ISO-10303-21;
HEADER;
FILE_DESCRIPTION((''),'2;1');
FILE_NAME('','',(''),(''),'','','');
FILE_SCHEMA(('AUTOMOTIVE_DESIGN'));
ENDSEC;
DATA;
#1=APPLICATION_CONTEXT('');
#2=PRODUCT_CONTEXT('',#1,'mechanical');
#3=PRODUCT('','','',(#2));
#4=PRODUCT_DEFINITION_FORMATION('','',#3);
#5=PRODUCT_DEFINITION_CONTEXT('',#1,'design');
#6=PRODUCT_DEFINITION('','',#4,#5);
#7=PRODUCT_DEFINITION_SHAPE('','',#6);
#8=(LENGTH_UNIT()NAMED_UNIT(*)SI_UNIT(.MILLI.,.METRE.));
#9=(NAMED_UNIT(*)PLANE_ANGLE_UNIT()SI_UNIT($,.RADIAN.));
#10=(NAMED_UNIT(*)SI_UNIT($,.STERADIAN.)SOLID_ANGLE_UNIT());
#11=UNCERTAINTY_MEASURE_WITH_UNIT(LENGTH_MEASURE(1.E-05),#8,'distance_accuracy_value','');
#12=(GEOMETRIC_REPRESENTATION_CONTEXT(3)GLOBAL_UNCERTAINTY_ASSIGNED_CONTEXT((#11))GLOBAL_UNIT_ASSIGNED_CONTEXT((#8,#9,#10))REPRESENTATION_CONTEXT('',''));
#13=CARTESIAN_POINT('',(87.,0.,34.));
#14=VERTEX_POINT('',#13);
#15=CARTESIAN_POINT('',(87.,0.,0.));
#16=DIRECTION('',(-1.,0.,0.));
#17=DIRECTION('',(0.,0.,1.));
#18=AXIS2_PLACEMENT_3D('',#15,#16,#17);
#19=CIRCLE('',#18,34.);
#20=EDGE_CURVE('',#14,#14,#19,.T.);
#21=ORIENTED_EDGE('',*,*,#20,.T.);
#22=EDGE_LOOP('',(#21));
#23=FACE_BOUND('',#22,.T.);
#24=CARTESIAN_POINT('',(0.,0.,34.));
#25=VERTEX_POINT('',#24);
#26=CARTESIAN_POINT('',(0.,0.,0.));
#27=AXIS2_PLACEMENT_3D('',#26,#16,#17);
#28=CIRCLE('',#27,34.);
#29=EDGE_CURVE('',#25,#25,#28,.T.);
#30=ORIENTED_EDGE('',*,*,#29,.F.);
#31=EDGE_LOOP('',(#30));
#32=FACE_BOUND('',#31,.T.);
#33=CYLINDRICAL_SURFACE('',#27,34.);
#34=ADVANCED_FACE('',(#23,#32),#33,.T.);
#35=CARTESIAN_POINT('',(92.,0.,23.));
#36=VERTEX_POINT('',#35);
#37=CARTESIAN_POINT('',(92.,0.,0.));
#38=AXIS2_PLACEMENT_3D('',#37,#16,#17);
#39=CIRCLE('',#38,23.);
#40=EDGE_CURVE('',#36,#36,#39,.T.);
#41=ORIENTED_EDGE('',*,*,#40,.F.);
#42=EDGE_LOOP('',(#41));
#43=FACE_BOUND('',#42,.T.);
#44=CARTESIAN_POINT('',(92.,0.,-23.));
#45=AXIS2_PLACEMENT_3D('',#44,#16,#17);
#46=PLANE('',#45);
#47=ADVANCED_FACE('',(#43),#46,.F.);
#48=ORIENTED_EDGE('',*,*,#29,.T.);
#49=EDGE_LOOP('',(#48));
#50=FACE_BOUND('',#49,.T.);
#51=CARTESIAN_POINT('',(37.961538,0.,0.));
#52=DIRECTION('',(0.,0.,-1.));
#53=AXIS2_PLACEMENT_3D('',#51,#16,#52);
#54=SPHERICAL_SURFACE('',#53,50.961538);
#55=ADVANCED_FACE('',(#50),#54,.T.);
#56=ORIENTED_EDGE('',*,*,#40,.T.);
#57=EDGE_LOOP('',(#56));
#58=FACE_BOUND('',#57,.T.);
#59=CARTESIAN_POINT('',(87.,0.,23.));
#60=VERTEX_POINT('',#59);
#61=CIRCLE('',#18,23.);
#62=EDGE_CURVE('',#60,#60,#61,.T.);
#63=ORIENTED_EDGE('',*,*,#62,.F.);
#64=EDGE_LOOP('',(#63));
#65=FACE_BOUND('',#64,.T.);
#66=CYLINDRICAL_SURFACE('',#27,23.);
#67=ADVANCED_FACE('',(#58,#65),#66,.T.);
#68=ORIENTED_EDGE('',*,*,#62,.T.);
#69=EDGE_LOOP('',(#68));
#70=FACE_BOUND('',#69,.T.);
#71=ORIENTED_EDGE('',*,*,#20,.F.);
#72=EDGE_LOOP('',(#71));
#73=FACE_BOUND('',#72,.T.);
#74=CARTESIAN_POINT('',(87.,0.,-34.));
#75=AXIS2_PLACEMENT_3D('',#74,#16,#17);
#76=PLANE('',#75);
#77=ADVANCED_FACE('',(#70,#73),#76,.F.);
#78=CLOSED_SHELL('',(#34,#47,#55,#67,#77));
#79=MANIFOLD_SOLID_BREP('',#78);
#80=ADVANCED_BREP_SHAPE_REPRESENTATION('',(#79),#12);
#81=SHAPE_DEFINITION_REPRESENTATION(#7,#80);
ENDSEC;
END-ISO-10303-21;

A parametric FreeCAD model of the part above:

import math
import FreeCAD as App
import Part
import Sketcher
from FreeCAD import Vector
Q = App.Units.Quantity

doc = App.newDocument("Part")
body = doc.addObject("PartDesign::Body", "Body")

sketch1 = body.newObject("Sketcher::SketchObject", "Sketch")
sketch1.AttachmentSupport = (doc.getObject("XZ_Plane"), [""])
sketch1.MapMode = "FlatFace"
sketch1.addGeometry([
    Part.LineSegment(Vector(92, -23, 0), Vector(87, -23, 0)),
    Part.LineSegment(Vector(87, -23, 0), Vector(87, -34, 0)),
    Part.LineSegment(Vector(87, -34, 0), Vector(0, -34, 0)),
    Part.ArcOfCircle(Part.Circle(Vector(38, 0, 0), Vector(0, 0, 1), 51), math.radians(-180), math.radians(-138)),
    Part.LineSegment(Vector(-13, 0, 0), Vector(92, 0, 0)),
    Part.LineSegment(Vector(92, 0, 0), Vector(92, -23, 0)),
], False)
sketch1.addConstraint([
    Sketcher.Constraint("Coincident", 0, 2, 1, 1),
    Sketcher.Constraint("Coincident", 1, 2, 2, 1),
    Sketcher.Constraint("Coincident", 2, 2, 3, 2),
    Sketcher.Constraint("Coincident", 3, 1, 4, 1),
    Sketcher.Constraint("Coincident", 4, 2, 5, 1),
    Sketcher.Constraint("Coincident", 5, 2, 0, 1),
    Sketcher.Constraint("Horizontal", 0),
    Sketcher.Constraint("Vertical", 1),
    Sketcher.Constraint("Horizontal", 2),
    Sketcher.Constraint("Horizontal", 4),
    Sketcher.Constraint("Vertical", 5),
    Sketcher.Constraint("PointOnObject", 3, 3, -1),
    Sketcher.Constraint("PointOnObject", 2, 2, -2),
    Sketcher.Constraint("PointOnObject", 3, 1, -1),
    Sketcher.Constraint("DistanceX", 0, 2, 0, 1, Q("5 mm")),
    Sketcher.Constraint("DistanceX", 2, 2, 2, 1, Q("87 mm")),
    Sketcher.Constraint("DistanceX", 4, 1, 4, 2, Q("105 mm")),
    Sketcher.Constraint("DistanceY", 1, 2, 1, 1, Q("11 mm")),
    Sketcher.Constraint("DistanceY", 5, 2, 5, 1, Q("23 mm")),
])
revolution = body.newObject("PartDesign::Revolution", "Revolution")
revolution.Profile = sketch1
revolution.ReferenceAxis = (sketch1, ["H_Axis"])
revolution.Angle = 360

doc.recompute()
